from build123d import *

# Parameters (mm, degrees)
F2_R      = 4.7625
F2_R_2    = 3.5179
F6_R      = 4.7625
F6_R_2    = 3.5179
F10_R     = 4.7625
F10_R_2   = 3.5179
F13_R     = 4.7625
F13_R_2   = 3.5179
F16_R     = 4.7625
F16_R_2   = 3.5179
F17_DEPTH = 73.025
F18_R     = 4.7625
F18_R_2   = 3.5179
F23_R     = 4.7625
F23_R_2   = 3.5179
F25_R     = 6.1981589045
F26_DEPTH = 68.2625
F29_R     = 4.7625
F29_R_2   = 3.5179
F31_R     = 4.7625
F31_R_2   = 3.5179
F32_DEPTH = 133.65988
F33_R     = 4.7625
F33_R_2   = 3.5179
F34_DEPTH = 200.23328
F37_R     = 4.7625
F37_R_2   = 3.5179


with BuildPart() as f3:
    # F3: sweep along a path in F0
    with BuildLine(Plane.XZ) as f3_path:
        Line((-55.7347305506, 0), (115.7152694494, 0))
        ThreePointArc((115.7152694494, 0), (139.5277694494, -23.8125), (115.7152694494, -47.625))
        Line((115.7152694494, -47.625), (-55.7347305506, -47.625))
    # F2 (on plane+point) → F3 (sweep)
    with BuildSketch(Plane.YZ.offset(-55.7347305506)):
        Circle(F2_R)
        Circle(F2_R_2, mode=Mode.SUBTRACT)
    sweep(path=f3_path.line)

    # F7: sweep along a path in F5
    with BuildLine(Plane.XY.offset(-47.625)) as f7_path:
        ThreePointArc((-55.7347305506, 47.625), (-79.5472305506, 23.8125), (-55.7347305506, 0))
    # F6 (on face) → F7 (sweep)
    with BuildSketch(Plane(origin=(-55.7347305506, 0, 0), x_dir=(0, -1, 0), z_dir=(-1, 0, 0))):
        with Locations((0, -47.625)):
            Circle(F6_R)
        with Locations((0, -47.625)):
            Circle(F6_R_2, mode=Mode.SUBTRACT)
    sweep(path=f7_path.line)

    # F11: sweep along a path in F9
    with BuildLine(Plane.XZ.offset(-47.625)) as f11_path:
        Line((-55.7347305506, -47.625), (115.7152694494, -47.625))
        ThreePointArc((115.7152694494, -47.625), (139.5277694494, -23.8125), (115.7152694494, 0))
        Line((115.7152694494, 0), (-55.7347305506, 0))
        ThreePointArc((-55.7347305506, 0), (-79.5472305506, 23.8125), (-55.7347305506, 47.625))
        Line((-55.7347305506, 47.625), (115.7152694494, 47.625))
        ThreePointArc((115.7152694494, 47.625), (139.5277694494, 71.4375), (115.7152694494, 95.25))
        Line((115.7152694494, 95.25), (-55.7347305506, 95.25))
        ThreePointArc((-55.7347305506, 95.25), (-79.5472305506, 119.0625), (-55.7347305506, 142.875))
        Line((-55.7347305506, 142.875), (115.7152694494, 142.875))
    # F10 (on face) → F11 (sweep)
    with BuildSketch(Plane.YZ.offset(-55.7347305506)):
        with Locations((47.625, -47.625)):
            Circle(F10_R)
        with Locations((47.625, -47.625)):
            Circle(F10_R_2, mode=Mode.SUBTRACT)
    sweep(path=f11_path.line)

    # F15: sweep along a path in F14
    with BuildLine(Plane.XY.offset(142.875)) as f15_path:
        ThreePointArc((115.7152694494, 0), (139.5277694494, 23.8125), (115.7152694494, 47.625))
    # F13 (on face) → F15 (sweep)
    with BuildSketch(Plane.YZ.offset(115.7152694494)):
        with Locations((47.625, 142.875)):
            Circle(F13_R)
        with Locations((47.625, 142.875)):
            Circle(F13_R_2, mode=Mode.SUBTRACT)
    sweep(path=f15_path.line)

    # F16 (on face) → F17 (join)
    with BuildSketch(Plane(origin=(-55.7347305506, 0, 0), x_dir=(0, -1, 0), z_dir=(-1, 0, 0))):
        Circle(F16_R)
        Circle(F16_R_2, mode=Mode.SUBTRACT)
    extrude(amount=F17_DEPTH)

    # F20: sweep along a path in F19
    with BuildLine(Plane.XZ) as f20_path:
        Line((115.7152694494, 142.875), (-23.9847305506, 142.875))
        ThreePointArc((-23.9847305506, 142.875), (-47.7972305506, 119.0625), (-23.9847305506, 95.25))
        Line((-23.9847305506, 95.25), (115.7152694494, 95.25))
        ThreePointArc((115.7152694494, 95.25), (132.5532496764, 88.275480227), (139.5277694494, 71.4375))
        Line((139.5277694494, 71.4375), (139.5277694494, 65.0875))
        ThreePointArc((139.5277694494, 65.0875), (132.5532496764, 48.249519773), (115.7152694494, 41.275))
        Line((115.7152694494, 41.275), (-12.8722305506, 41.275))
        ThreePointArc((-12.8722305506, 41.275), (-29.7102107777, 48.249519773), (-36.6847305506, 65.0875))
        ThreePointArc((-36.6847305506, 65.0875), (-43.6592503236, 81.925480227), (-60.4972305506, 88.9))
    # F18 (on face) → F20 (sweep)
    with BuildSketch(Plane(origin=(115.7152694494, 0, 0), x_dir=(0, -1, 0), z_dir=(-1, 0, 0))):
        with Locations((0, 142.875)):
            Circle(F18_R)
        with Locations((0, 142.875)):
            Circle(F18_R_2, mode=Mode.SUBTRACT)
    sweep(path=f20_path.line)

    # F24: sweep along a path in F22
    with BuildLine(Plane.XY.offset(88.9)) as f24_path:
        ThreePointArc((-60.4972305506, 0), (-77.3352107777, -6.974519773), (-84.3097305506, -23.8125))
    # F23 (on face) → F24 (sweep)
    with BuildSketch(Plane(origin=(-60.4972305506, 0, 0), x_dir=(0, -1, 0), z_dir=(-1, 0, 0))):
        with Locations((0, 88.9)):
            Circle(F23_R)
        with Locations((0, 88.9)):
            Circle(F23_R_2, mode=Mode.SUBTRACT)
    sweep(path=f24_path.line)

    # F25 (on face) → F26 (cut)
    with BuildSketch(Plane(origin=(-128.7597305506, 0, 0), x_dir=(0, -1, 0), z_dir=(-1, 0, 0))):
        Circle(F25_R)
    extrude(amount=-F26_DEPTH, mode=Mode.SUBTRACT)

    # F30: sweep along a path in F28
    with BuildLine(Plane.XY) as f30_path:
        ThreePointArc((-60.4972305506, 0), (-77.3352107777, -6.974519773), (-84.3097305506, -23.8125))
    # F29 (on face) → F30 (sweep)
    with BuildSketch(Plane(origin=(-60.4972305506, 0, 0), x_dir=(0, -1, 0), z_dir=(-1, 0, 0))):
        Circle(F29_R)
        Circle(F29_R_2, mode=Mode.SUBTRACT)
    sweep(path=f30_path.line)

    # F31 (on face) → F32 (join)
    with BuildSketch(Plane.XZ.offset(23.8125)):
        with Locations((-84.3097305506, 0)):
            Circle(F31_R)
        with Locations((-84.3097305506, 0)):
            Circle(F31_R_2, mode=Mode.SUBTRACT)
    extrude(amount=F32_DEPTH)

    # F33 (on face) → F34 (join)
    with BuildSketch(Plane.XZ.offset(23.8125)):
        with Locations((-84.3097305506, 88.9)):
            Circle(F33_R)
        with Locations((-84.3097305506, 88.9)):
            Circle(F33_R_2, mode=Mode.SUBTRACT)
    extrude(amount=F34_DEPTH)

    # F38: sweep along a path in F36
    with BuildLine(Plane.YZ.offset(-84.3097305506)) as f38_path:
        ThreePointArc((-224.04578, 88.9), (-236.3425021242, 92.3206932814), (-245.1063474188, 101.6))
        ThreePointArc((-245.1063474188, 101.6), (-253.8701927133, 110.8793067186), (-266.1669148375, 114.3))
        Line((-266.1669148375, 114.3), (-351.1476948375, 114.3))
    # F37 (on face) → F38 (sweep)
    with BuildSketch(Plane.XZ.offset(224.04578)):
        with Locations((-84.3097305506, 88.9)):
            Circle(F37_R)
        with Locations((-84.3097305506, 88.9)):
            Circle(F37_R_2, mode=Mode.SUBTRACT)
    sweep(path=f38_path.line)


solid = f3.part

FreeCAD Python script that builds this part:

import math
import FreeCAD as App
import Part
import Sketcher

V = App.Vector
Q = App.Units.Quantity

doc = App.newDocument("Part")
body = doc.addObject("PartDesign::Body", "Body")

# Sketch on YZ plane
sketch1 = body.newObject("Sketcher::SketchObject", "Sketch")
sketch1.AttachmentSupport = (doc.getObject("YZ_Plane"), [""])
sketch1.MapMode = "FlatFace"
sketch1.AttachmentOffset = App.Placement(V(0, 0, -55.734731), App.Rotation())
sketch1.addGeometry([
    Part.Circle(V(0, 0, 0), V(0, 0, 1), 4.8),
    Part.Circle(V(0, 0, 0), V(0, 0, 1), 3.5),
], False)
sketch1.addConstraint([
    Sketcher.Constraint("Coincident", 0, 3, -1, 1),
    Sketcher.Constraint("Coincident", 1, 3, -1, 1),
    Sketcher.Constraint("Diameter", 0, Q("0.375 in")),
    Sketcher.Constraint("Diameter", 1, Q("0.277 in")),
])

# Sketch on XZ plane
sketch2 = body.newObject("Sketcher::SketchObject", "Sketch001")
sketch2.AttachmentSupport = (doc.getObject("XZ_Plane"), [""])
sketch2.MapMode = "FlatFace"
sketch2.addGeometry([
    Part.LineSegment(V(-56, 0, 0), V(116, 0, 0)),
    Part.ArcOfCircle(Part.Circle(V(116, -24, 0), V(0, 0, 1), 24), math.radians(-90), math.radians(90)),
    Part.LineSegment(V(116, -48, 0), V(-56, -48, 0)),
], False)
sketch2.addConstraint([
    Sketcher.Constraint("Tangent", 0, 2, 1, 2),
    Sketcher.Constraint("Tangent", 1, 1, 2, 1),
    Sketcher.Constraint("Horizontal", 0),
    Sketcher.Constraint("Horizontal", 2),
    Sketcher.Constraint("PointOnObject", 0, 1, -1),
    Sketcher.Constraint("Vertical", 0, 1, 2, 2),
    Sketcher.Constraint("Radius", 1, Q("0.9375 in")),
    Sketcher.Constraint("DistanceX", 0, 1, 0, 2, Q("6.75 in")),
    Sketcher.Constraint("DistanceX", -1, 1, 1, 3, Q("115.715269 mm")),
])
doc.recompute()

additivepipe = body.newObject("PartDesign::AdditivePipe", "AdditivePipe")
additivepipe.Profile = sketch1
additivepipe.Spine = (sketch2, ["Edge1", "Edge2", "Edge3"])

# Sketch on YZ plane
sketch3 = body.newObject("Sketcher::SketchObject", "Sketch002")
sketch3.AttachmentSupport = (doc.getObject("YZ_Plane"), [""])
sketch3.MapMode = "FlatFace"
sketch3.AttachmentOffset = App.Placement(V(0, 0, -55.734731), App.Rotation())
sketch3.addGeometry([
    Part.Circle(V(0, -47.6, 0), V(0, 0, 1), 4.8),
    Part.Circle(V(0, -47.6, 0), V(0, 0, 1), 3.5),
], False)
sketch3.addConstraint([
    Sketcher.Constraint("Coincident", 1, 3, 0, 3),
    Sketcher.Constraint("PointOnObject", 0, 3, -2),
    Sketcher.Constraint("Diameter", 0, Q("0.375 in")),
    Sketcher.Constraint("Diameter", 1, Q("0.277 in")),
    Sketcher.Constraint("DistanceY", 0, 3, -1, 1, Q("1.875 in")),
])

# Sketch on XY plane
sketch4 = body.newObject("Sketcher::SketchObject", "Sketch003")
sketch4.AttachmentSupport = (doc.getObject("XY_Plane"), [""])
sketch4.MapMode = "FlatFace"
sketch4.AttachmentOffset = App.Placement(V(0, 0, -1.875 * 25.4), App.Rotation())
sketch4.addGeometry(Part.ArcOfCircle(Part.Circle(V(-56, 24, 0), V(0, 0, 1), 24), math.radians(90), math.radians(270)), False)
sketch4.addConstraint([
    Sketcher.Constraint("PointOnObject", 0, 2, -1),
    Sketcher.Constraint("Radius", 0, Q("0.9375 in")),
    Sketcher.Constraint("DistanceX", 0, 3, -1, 1, Q("55.734731 mm")),
    Sketcher.Constraint("DistanceX", 0, 1, -1, 1, Q("55.734731 mm")),
    Sketcher.Constraint("DistanceX", 0, 2, -1, 1, Q("55.734731 mm")),
])
doc.recompute()

additivepipe2 = body.newObject("PartDesign::AdditivePipe", "AdditivePipe001")
additivepipe2.Profile = sketch3
additivepipe2.Spine = (sketch4, ["Edge1"])

# Sketch on YZ plane
sketch5 = body.newObject("Sketcher::SketchObject", "Sketch004")
sketch5.AttachmentSupport = (doc.getObject("YZ_Plane"), [""])
sketch5.MapMode = "FlatFace"
sketch5.AttachmentOffset = App.Placement(V(0, 0, -55.734731), App.Rotation())
sketch5.addGeometry([
    Part.Circle(V(47.6, -47.6, 0), V(0, 0, 1), 4.8),
    Part.Circle(V(47.6, -47.6, 0), V(0, 0, 1), 3.5),
], False)
sketch5.addConstraint([
    Sketcher.Constraint("Coincident", 1, 3, 0, 3),
    Sketcher.Constraint("Diameter", 0, Q("0.375 in")),
    Sketcher.Constraint("Diameter", 1, Q("0.277 in")),
    Sketcher.Constraint("DistanceX", -1, 1, 0, 3, Q("1.875 in")),
    Sketcher.Constraint("DistanceY", 0, 3, -1, 1, Q("1.875 in")),
])

# Sketch on XZ plane
sketch6 = body.newObject("Sketcher::SketchObject", "Sketch005")
sketch6.AttachmentSupport = (doc.getObject("XZ_Plane"), [""])
sketch6.MapMode = "FlatFace"
sketch6.AttachmentOffset = App.Placement(V(0, 0, -1.875 * 25.4), App.Rotation())
sketch6.addGeometry([
    Part.LineSegment(V(-56, -48, 0), V(116, -48, 0)),  # 0
    Part.ArcOfCircle(Part.Circle(V(116, -24, 0), V(0, 0, 1), 24), math.radians(-90), math.radians(90)),  # 1
    Part.LineSegment(V(116, 0, 0), V(-56, 0, 0)),  # 2
    Part.ArcOfCircle(Part.Circle(V(-56, 24, 0), V(0, 0, 1), 24), math.radians(90), math.radians(270)),  # 3
    Part.LineSegment(V(-56, 48, 0), V(116, 48, 0)),  # 4
    Part.ArcOfCircle(Part.Circle(V(116, 71, 0), V(0, 0, 1), 24), math.radians(-90), math.radians(90)),  # 5
    Part.LineSegment(V(116, 95, 0), V(-56, 95, 0)),  # 6
    Part.ArcOfCircle(Part.Circle(V(-56, 119, 0), V(0, 0, 1), 24), math.radians(90), math.radians(270)),  # 7
    Part.LineSegment(V(-56, 143, 0), V(116, 143, 0)),  # 8
], False)
sketch6.addConstraint([
    Sketcher.Constraint("Tangent", 0, 2, 1, 1),
    Sketcher.Constraint("Tangent", 1, 2, 2, 1),
    Sketcher.Constraint("Tangent", 2, 2, 3, 2),
    Sketcher.Constraint("Tangent", 3, 1, 4, 1),
    Sketcher.Constraint("Tangent", 4, 2, 5, 1),
    Sketcher.Constraint("Tangent", 5, 2, 6, 1),
    Sketcher.Constraint("Tangent", 6, 2, 7, 2),
    Sketcher.Constraint("Tangent", 7, 1, 8, 1),
    Sketcher.Constraint("Horizontal", 0),
    Sketcher.Constraint("Horizontal", 2),
    Sketcher.Constraint("Horizontal", 4),
    Sketcher.Constraint("Horizontal", 6),
    Sketcher.Constraint("Horizontal", 8),
    Sketcher.Constraint("Equal", 1, 3),
    Sketcher.Constraint("Equal", 3, 5),
    Sketcher.Constraint("Equal", 5, 7),
    Sketcher.Constraint("Symmetric", 0, 1, 3, 1, -1),
    Sketcher.Constraint("Vertical", 1, 3, 5, 3),
    Sketcher.Constraint("Vertical", 3, 3, 7, 3),
    Sketcher.Constraint("Vertical", 5, 2, 8, 2),
    Sketcher.Constraint("Radius", 1, Q("0.9375 in")),
    Sketcher.Constraint("DistanceX", 0, 1, 0, 2, Q("6.75 in")),
    Sketcher.Constraint("DistanceX", -1, 1, 1, 3, Q("115.715269 mm")),
])
doc.recompute()

additivepipe3 = body.newObject("PartDesign::AdditivePipe", "AdditivePipe002")
additivepipe3.Profile = sketch5
additivepipe3.Spine = (sketch6, ["Edge1", "Edge2", "Edge3", "Edge4", "Edge5", "Edge6", "Edge7", "Edge8", "Edge9"])

# Sketch on YZ plane
sketch7 = body.newObject("Sketcher::SketchObject", "Sketch006")
sketch7.AttachmentSupport = (doc.getObject("YZ_Plane"), [""])
sketch7.MapMode = "FlatFace"
sketch7.AttachmentOffset = App.Placement(V(0, 0, 115.715269), App.Rotation())
sketch7.addGeometry([
    Part.Circle(V(47.6, 142.9, 0), V(0, 0, 1), 4.8),
    Part.Circle(V(47.6, 142.9, 0), V(0, 0, 1), 3.5),
], False)
sketch7.addConstraint([
    Sketcher.Constraint("Coincident", 1, 3, 0, 3),
    Sketcher.Constraint("Diameter", 0, Q("0.375 in")),
    Sketcher.Constraint("Diameter", 1, Q("0.277 in")),
    Sketcher.Constraint("DistanceX", -1, 1, 0, 3, Q("1.875 in")),
    Sketcher.Constraint("DistanceY", -1, 1, 0, 3, Q("5.625 in")),
])

# Sketch on XY plane
sketch8 = body.newObject("Sketcher::SketchObject", "Sketch007")
sketch8.AttachmentSupport = (doc.getObject("XY_Plane"), [""])
sketch8.MapMode = "FlatFace"
sketch8.AttachmentOffset = App.Placement(V(0, 0, 5.625 * 25.4), App.Rotation())
sketch8.addGeometry(Part.ArcOfCircle(Part.Circle(V(116, 24, 0), V(0, 0, 1), 24), math.radians(-90), math.radians(90)), False)
sketch8.addConstraint([
    Sketcher.Constraint("PointOnObject", 0, 1, -1),
    Sketcher.Constraint("Radius", 0, Q("0.9375 in")),
    Sketcher.Constraint("DistanceX", -1, 1, 0, 3, Q("115.715269 mm")),
    Sketcher.Constraint("DistanceX", -1, 1, 0, 1, Q("115.715269 mm")),
    Sketcher.Constraint("DistanceX", -1, 1, 0, 2, Q("115.715269 mm")),
])
doc.recompute()

additivepipe4 = body.newObject("PartDesign::AdditivePipe", "AdditivePipe003")
additivepipe4.Profile = sketch7
additivepipe4.Spine = (sketch8, ["Edge1"])

# Sketch on YZ plane
sketch9 = body.newObject("Sketcher::SketchObject", "Sketch008")
sketch9.AttachmentSupport = (doc.getObject("YZ_Plane"), [""])
sketch9.MapMode = "FlatFace"
sketch9.AttachmentOffset = App.Placement(V(0, 0, -55.734731), App.Rotation())
sketch9.addGeometry([
    Part.Circle(V(0, 0, 0), V(0, 0, 1), 4.8),
    Part.Circle(V(0, 0, 0), V(0, 0, 1), 3.5),
], False)
sketch9.addConstraint([
    Sketcher.Constraint("Coincident", 0, 3, -1, 1),
    Sketcher.Constraint("Coincident", 1, 3, -1, 1),
    Sketcher.Constraint("Diameter", 0, Q("0.375 in")),
    Sketcher.Constraint("Diameter", 1, Q("0.277 in")),
])
pad1 = body.newObject("PartDesign::Pad", "Pad")
pad1.Profile = sketch9
pad1.Length = Q("2.875 in")
pad1.Reversed = True

# Sketch on YZ plane
sketch10 = body.newObject("Sketcher::SketchObject", "Sketch009")
sketch10.AttachmentSupport = (doc.getObject("YZ_Plane"), [""])
sketch10.MapMode = "FlatFace"
sketch10.AttachmentOffset = App.Placement(V(0, 0, 115.715269), App.Rotation())
sketch10.addGeometry([
    Part.Circle(V(0, 142.9, 0), V(0, 0, 1), 4.8),
    Part.Circle(V(0, 142.9, 0), V(0, 0, 1), 3.5),
], False)
sketch10.addConstraint([
    Sketcher.Constraint("Coincident", 1, 3, 0, 3),
    Sketcher.Constraint("PointOnObject", 0, 3, -2),
    Sketcher.Constraint("Diameter", 0, Q("0.375 in")),
    Sketcher.Constraint("Diameter", 1, Q("0.277 in")),
    Sketcher.Constraint("DistanceY", -1, 1, 0, 3, Q("5.625 in")),
])

# Sketch on XZ plane
sketch11 = body.newObject("Sketcher::SketchObject", "Sketch010")
sketch11.AttachmentSupport = (doc.getObject("XZ_Plane"), [""])
sketch11.MapMode = "FlatFace"
sketch11.addGeometry([
    Part.LineSegment(V(116, 143, 0), V(-24, 143, 0)),  # 0
    Part.ArcOfCircle(Part.Circle(V(-24, 119, 0), V(0, 0, 1), 24), math.radians(90), math.radians(270)),  # 1
    Part.LineSegment(V(-24, 95, 0), V(116, 95, 0)),  # 2
    Part.ArcOfCircle(Part.Circle(V(116, 71, 0), V(0, 0, 1), 24), math.radians(0), math.radians(90)),  # 3
    Part.LineSegment(V(140, 71, 0), V(140, 65, 0)),  # 4
    Part.ArcOfCircle(Part.Circle(V(116, 65, 0), V(0, 0, 1), 24), math.radians(-90), math.radians(0)),  # 5
    Part.LineSegment(V(116, 41, 0), V(-13, 41, 0)),  # 6
    Part.ArcOfCircle(Part.Circle(V(-13, 65, 0), V(0, 0, 1), 24), math.radians(180), math.radians(270)),  # 7
    Part.ArcOfCircle(Part.Circle(V(-60, 65, 0), V(0, 0, 1), 24), math.radians(0), math.radians(90)),  # 8
], False)
sketch11.addConstraint([
    Sketcher.Constraint("Tangent", 0, 2, 1, 1),
    Sketcher.Constraint("Tangent", 1, 2, 2, 1),
    Sketcher.Constraint("Tangent", 2, 2, 3, 2),
    Sketcher.Constraint("Tangent", 3, 1, 4, 1),
    Sketcher.Constraint("Tangent", 4, 2, 5, 2),
    Sketcher.Constraint("Tangent", 5, 1, 6, 1),
    Sketcher.Constraint("Tangent", 6, 2, 7, 2),
    Sketcher.Constraint("Tangent", 7, 1, 8, 1),
    Sketcher.Constraint("Horizontal", 0),
    Sketcher.Constraint("Horizontal", 2),
    Sketcher.Constraint("Vertical", 4),
    Sketcher.Constraint("Horizontal", 6),
    Sketcher.Constraint("Equal", 1, 3),
    Sketcher.Constraint("Equal", 3, 5),
    Sketcher.Constraint("Equal", 5, 7),
    Sketcher.Constraint("Equal", 7, 8),
    Sketcher.Constraint("Horizontal", 7, 3, 8, 3),
    Sketcher.Constraint("Vertical", 5, 3, 0, 1),
    Sketcher.Constraint("DistanceX", 0, 2, 0, 1, Q("5.5 in")),
    Sketcher.Constraint("Radius", 1, Q("0.9375 in")),
    Sketcher.Constraint("DistanceX", 7, 3, 3, 1, Q("6 in")),
    Sketcher.Constraint("DistanceY", 6, 2, 0, 2, Q("4 in")),
    Sketcher.Constraint("DistanceY", -1, 1, 8, 2, Q("3.5 in")),
    Sketcher.Constraint("DistanceX", 8, 2, 7, 1, Q("0.9375 in")),
    Sketcher.Constraint("DistanceX", 1, 3, -1, 1, Q("23.984731 mm")),
])
doc.recompute()

additivepipe5 = body.newObject("PartDesign::AdditivePipe", "AdditivePipe004")
additivepipe5.Profile = sketch10
additivepipe5.Spine = (sketch11, ["Edge1", "Edge2", "Edge3", "Edge4", "Edge5", "Edge6", "Edge7", "Edge8", "Edge9"])

# Sketch on YZ plane
sketch12 = body.newObject("Sketcher::SketchObject", "Sketch011")
sketch12.AttachmentSupport = (doc.getObject("YZ_Plane"), [""])
sketch12.MapMode = "FlatFace"
sketch12.AttachmentOffset = App.Placement(V(0, 0, -60.497231), App.Rotation())
sketch12.addGeometry([
    Part.Circle(V(0, 88.9, 0), V(0, 0, 1), 4.8),
    Part.Circle(V(0, 88.9, 0), V(0, 0, 1), 3.5),
], False)
sketch12.addConstraint([
    Sketcher.Constraint("Coincident", 1, 3, 0, 3),
    Sketcher.Constraint("PointOnObject", 0, 3, -2),
    Sketcher.Constraint("Diameter", 0, Q("0.375 in")),
    Sketcher.Constraint("Diameter", 1, Q("0.277 in")),
    Sketcher.Constraint("DistanceY", -1, 1, 0, 3, Q("3.5 in")),
])

# Sketch on XY plane
sketch13 = body.newObject("Sketcher::SketchObject", "Sketch012")
sketch13.AttachmentSupport = (doc.getObject("XY_Plane"), [""])
sketch13.MapMode = "FlatFace"
sketch13.AttachmentOffset = App.Placement(V(0, 0, 3.5 * 25.4), App.Rotation())
sketch13.addGeometry(Part.ArcOfCircle(Part.Circle(V(-60, -24, 0), V(0, 0, 1), 24), math.radians(90), math.radians(180)), False)
sketch13.addConstraint([
    Sketcher.Constraint("PointOnObject", 0, 1, -1),
    Sketcher.Constraint("Radius", 0, Q("0.9375 in")),
    Sketcher.Constraint("DistanceY", 0, 2, -1, 1, Q("0.9375 in")),
    Sketcher.Constraint("DistanceX", 0, 2, 0, 1, Q("0.9375 in")),
    Sketcher.Constraint("DistanceX", 0, 3, -1, 1, Q("60.497231 mm")),
])
doc.recompute()

additivepipe6 = body.newObject("PartDesign::AdditivePipe", "AdditivePipe005")
additivepipe6.Profile = sketch12
additivepipe6.Spine = (sketch13, ["Edge1"])

# Sketch on YZ plane
sketch14 = body.newObject("Sketcher::SketchObject", "Sketch013")
sketch14.AttachmentSupport = (doc.getObject("YZ_Plane"), [""])
sketch14.MapMode = "FlatFace"
sketch14.AttachmentOffset = App.Placement(V(0, 0, -128.759731), App.Rotation())
sketch14.addGeometry(Part.Circle(V(0, 0, 0), V(0, 0, 1), 6), False)
sketch14.addConstraint([
    Sketcher.Constraint("Coincident", 0, 3, -1, 1),
    Sketcher.Constraint("Diameter", 0, Q("12.396318 mm")),
])
pocket1 = body.newObject("PartDesign::Pocket", "Pocket")
pocket1.Profile = sketch14
pocket1.Length = Q("2.6875 in")
pocket1.Reversed = True

# Sketch on YZ plane
sketch15 = body.newObject("Sketcher::SketchObject", "Sketch014")
sketch15.AttachmentSupport = (doc.getObject("YZ_Plane"), [""])
sketch15.MapMode = "FlatFace"
sketch15.AttachmentOffset = App.Placement(V(0, 0, -60.497231), App.Rotation())
sketch15.addGeometry([
    Part.Circle(V(0, 0, 0), V(0, 0, 1), 4.8),
    Part.Circle(V(0, 0, 0), V(0, 0, 1), 3.5),
], False)
sketch15.addConstraint([
    Sketcher.Constraint("Coincident", 0, 3, -1, 1),
    Sketcher.Constraint("Coincident", 1, 3, -1, 1),
    Sketcher.Constraint("Diameter", 0, Q("0.375 in")),
    Sketcher.Constraint("Diameter", 1, Q("0.277 in")),
])

# Sketch on XY plane
sketch16 = body.newObject("Sketcher::SketchObject", "Sketch015")
sketch16.AttachmentSupport = (doc.getObject("XY_Plane"), [""])
sketch16.MapMode = "FlatFace"
sketch16.addGeometry(Part.ArcOfCircle(Part.Circle(V(-60, -24, 0), V(0, 0, 1), 24), math.radians(90), math.radians(180)), False)
sketch16.addConstraint([
    Sketcher.Constraint("PointOnObject", 0, 1, -1),
    Sketcher.Constraint("Radius", 0, Q("0.9375 in")),
    Sketcher.Constraint("DistanceY", 0, 2, -1, 1, Q("0.9375 in")),
    Sketcher.Constraint("DistanceX", 0, 2, 0, 1, Q("0.9375 in")),
    Sketcher.Constraint("DistanceX", 0, 3, -1, 1, Q("60.497231 mm")),
])
doc.recompute()

additivepipe7 = body.newObject("PartDesign::AdditivePipe", "AdditivePipe006")
additivepipe7.Profile = sketch15
additivepipe7.Spine = (sketch16, ["Edge1"])

# Sketch on XZ plane
sketch17 = body.newObject("Sketcher::SketchObject", "Sketch016")
sketch17.AttachmentSupport = (doc.getObject("XZ_Plane"), [""])
sketch17.MapMode = "FlatFace"
sketch17.AttachmentOffset = App.Placement(V(0, 0, 0.9375 * 25.4), App.Rotation())
sketch17.addGeometry([
    Part.Circle(V(-84.3, 0, 0), V(0, 0, 1), 4.8),
    Part.Circle(V(-84.3, 0, 0), V(0, 0, 1), 3.5),
], False)
sketch17.addConstraint([
    Sketcher.Constraint("Coincident", 1, 3, 0, 3),
    Sketcher.Constraint("PointOnObject", 0, 3, -1),
    Sketcher.Constraint("Diameter", 0, Q("0.375 in")),
    Sketcher.Constraint("Diameter", 1, Q("0.277 in")),
    Sketcher.Constraint("DistanceX", 0, 3, -1, 1, Q("84.309731 mm")),
])
pad2 = body.newObject("PartDesign::Pad", "Pad001")
pad2.Profile = sketch17
pad2.Length = Q("5.2622 in")

# Sketch on XZ plane
sketch18 = body.newObject("Sketcher::SketchObject", "Sketch017")
sketch18.AttachmentSupport = (doc.getObject("XZ_Plane"), [""])
sketch18.MapMode = "FlatFace"
sketch18.AttachmentOffset = App.Placement(V(0, 0, 0.9375 * 25.4), App.Rotation())
sketch18.addGeometry([
    Part.Circle(V(-84.3, 88.9, 0), V(0, 0, 1), 4.8),
    Part.Circle(V(-84.3, 88.9, 0), V(0, 0, 1), 3.5),
], False)
sketch18.addConstraint([
    Sketcher.Constraint("Coincident", 1, 3, 0, 3),
    Sketcher.Constraint("Diameter", 0, Q("0.375 in")),
    Sketcher.Constraint("Diameter", 1, Q("0.277 in")),
    Sketcher.Constraint("DistanceY", -1, 1, 0, 3, Q("3.5 in")),
    Sketcher.Constraint("DistanceX", 0, 3, -1, 1, Q("84.309731 mm")),
])
pad3 = body.newObject("PartDesign::Pad", "Pad002")
pad3.Profile = sketch18
pad3.Length = Q("7.8832 in")

# Sketch on XZ plane
sketch19 = body.newObject("Sketcher::SketchObject", "Sketch018")
sketch19.AttachmentSupport = (doc.getObject("XZ_Plane"), [""])
sketch19.MapMode = "FlatFace"
sketch19.AttachmentOffset = App.Placement(V(0, 0, 8.8207 * 25.4), App.Rotation())
sketch19.addGeometry([
    Part.Circle(V(-84.3, 88.9, 0), V(0, 0, 1), 4.8),
    Part.Circle(V(-84.3, 88.9, 0), V(0, 0, 1), 3.5),
], False)
sketch19.addConstraint([
    Sketcher.Constraint("Coincident", 1, 3, 0, 3),
    Sketcher.Constraint("Diameter", 0, Q("0.375 in")),
    Sketcher.Constraint("Diameter", 1, Q("0.277 in")),
    Sketcher.Constraint("DistanceY", -1, 1, 0, 3, Q("3.5 in")),
    Sketcher.Constraint("DistanceX", 0, 3, -1, 1, Q("84.309731 mm")),
])

# Sketch on YZ plane
sketch20 = body.newObject("Sketcher::SketchObject", "Sketch019")
sketch20.AttachmentSupport = (doc.getObject("YZ_Plane"), [""])
sketch20.MapMode = "FlatFace"
sketch20.AttachmentOffset = App.Placement(V(0, 0, -84.309731), App.Rotation())
sketch20.addGeometry([
    Part.ArcOfCircle(Part.Circle(V(-224, 113, 0), V(0, 0, 1), 24), math.radians(-152), math.radians(-90)),
    Part.ArcOfCircle(Part.Circle(V(-266, 90, 0), V(0, 0, 1), 24), math.radians(28), math.radians(90)),
    Part.LineSegment(V(-266, 114, 0), V(-351, 114, 0)),
], False)
sketch20.addConstraint([
    Sketcher.Constraint("Tangent", 0, 1, 1, 1),
    Sketcher.Constraint("Tangent", 1, 2, 2, 1),
    Sketcher.Constraint("Horizontal", 2),
    Sketcher.Constraint("Equal", 0, 1),
    Sketcher.Constraint("DistanceY", -1, 1, 0, 1, Q("4 in")),
    Sketcher.Constraint("Radius", 0, Q("0.9375 in")),
    Sketcher.Constraint("DistanceY", 0, 2, 1, 2, Q("1 in")),
    Sketcher.Constraint("DistanceX", 2, 2, 2, 1, Q("3.3457 in")),
    Sketcher.Constraint("DistanceX", 0, 3, -1, 1, Q("8.8207 in")),
    Sketcher.Constraint("DistanceX", 0, 2, -1, 1, Q("8.8207 in")),
])
doc.recompute()

additivepipe8 = body.newObject("PartDesign::AdditivePipe", "AdditivePipe007")
additivepipe8.Profile = sketch19
additivepipe8.Spine = (sketch20, ["Edge1", "Edge2", "Edge3"])

doc.recompute()
